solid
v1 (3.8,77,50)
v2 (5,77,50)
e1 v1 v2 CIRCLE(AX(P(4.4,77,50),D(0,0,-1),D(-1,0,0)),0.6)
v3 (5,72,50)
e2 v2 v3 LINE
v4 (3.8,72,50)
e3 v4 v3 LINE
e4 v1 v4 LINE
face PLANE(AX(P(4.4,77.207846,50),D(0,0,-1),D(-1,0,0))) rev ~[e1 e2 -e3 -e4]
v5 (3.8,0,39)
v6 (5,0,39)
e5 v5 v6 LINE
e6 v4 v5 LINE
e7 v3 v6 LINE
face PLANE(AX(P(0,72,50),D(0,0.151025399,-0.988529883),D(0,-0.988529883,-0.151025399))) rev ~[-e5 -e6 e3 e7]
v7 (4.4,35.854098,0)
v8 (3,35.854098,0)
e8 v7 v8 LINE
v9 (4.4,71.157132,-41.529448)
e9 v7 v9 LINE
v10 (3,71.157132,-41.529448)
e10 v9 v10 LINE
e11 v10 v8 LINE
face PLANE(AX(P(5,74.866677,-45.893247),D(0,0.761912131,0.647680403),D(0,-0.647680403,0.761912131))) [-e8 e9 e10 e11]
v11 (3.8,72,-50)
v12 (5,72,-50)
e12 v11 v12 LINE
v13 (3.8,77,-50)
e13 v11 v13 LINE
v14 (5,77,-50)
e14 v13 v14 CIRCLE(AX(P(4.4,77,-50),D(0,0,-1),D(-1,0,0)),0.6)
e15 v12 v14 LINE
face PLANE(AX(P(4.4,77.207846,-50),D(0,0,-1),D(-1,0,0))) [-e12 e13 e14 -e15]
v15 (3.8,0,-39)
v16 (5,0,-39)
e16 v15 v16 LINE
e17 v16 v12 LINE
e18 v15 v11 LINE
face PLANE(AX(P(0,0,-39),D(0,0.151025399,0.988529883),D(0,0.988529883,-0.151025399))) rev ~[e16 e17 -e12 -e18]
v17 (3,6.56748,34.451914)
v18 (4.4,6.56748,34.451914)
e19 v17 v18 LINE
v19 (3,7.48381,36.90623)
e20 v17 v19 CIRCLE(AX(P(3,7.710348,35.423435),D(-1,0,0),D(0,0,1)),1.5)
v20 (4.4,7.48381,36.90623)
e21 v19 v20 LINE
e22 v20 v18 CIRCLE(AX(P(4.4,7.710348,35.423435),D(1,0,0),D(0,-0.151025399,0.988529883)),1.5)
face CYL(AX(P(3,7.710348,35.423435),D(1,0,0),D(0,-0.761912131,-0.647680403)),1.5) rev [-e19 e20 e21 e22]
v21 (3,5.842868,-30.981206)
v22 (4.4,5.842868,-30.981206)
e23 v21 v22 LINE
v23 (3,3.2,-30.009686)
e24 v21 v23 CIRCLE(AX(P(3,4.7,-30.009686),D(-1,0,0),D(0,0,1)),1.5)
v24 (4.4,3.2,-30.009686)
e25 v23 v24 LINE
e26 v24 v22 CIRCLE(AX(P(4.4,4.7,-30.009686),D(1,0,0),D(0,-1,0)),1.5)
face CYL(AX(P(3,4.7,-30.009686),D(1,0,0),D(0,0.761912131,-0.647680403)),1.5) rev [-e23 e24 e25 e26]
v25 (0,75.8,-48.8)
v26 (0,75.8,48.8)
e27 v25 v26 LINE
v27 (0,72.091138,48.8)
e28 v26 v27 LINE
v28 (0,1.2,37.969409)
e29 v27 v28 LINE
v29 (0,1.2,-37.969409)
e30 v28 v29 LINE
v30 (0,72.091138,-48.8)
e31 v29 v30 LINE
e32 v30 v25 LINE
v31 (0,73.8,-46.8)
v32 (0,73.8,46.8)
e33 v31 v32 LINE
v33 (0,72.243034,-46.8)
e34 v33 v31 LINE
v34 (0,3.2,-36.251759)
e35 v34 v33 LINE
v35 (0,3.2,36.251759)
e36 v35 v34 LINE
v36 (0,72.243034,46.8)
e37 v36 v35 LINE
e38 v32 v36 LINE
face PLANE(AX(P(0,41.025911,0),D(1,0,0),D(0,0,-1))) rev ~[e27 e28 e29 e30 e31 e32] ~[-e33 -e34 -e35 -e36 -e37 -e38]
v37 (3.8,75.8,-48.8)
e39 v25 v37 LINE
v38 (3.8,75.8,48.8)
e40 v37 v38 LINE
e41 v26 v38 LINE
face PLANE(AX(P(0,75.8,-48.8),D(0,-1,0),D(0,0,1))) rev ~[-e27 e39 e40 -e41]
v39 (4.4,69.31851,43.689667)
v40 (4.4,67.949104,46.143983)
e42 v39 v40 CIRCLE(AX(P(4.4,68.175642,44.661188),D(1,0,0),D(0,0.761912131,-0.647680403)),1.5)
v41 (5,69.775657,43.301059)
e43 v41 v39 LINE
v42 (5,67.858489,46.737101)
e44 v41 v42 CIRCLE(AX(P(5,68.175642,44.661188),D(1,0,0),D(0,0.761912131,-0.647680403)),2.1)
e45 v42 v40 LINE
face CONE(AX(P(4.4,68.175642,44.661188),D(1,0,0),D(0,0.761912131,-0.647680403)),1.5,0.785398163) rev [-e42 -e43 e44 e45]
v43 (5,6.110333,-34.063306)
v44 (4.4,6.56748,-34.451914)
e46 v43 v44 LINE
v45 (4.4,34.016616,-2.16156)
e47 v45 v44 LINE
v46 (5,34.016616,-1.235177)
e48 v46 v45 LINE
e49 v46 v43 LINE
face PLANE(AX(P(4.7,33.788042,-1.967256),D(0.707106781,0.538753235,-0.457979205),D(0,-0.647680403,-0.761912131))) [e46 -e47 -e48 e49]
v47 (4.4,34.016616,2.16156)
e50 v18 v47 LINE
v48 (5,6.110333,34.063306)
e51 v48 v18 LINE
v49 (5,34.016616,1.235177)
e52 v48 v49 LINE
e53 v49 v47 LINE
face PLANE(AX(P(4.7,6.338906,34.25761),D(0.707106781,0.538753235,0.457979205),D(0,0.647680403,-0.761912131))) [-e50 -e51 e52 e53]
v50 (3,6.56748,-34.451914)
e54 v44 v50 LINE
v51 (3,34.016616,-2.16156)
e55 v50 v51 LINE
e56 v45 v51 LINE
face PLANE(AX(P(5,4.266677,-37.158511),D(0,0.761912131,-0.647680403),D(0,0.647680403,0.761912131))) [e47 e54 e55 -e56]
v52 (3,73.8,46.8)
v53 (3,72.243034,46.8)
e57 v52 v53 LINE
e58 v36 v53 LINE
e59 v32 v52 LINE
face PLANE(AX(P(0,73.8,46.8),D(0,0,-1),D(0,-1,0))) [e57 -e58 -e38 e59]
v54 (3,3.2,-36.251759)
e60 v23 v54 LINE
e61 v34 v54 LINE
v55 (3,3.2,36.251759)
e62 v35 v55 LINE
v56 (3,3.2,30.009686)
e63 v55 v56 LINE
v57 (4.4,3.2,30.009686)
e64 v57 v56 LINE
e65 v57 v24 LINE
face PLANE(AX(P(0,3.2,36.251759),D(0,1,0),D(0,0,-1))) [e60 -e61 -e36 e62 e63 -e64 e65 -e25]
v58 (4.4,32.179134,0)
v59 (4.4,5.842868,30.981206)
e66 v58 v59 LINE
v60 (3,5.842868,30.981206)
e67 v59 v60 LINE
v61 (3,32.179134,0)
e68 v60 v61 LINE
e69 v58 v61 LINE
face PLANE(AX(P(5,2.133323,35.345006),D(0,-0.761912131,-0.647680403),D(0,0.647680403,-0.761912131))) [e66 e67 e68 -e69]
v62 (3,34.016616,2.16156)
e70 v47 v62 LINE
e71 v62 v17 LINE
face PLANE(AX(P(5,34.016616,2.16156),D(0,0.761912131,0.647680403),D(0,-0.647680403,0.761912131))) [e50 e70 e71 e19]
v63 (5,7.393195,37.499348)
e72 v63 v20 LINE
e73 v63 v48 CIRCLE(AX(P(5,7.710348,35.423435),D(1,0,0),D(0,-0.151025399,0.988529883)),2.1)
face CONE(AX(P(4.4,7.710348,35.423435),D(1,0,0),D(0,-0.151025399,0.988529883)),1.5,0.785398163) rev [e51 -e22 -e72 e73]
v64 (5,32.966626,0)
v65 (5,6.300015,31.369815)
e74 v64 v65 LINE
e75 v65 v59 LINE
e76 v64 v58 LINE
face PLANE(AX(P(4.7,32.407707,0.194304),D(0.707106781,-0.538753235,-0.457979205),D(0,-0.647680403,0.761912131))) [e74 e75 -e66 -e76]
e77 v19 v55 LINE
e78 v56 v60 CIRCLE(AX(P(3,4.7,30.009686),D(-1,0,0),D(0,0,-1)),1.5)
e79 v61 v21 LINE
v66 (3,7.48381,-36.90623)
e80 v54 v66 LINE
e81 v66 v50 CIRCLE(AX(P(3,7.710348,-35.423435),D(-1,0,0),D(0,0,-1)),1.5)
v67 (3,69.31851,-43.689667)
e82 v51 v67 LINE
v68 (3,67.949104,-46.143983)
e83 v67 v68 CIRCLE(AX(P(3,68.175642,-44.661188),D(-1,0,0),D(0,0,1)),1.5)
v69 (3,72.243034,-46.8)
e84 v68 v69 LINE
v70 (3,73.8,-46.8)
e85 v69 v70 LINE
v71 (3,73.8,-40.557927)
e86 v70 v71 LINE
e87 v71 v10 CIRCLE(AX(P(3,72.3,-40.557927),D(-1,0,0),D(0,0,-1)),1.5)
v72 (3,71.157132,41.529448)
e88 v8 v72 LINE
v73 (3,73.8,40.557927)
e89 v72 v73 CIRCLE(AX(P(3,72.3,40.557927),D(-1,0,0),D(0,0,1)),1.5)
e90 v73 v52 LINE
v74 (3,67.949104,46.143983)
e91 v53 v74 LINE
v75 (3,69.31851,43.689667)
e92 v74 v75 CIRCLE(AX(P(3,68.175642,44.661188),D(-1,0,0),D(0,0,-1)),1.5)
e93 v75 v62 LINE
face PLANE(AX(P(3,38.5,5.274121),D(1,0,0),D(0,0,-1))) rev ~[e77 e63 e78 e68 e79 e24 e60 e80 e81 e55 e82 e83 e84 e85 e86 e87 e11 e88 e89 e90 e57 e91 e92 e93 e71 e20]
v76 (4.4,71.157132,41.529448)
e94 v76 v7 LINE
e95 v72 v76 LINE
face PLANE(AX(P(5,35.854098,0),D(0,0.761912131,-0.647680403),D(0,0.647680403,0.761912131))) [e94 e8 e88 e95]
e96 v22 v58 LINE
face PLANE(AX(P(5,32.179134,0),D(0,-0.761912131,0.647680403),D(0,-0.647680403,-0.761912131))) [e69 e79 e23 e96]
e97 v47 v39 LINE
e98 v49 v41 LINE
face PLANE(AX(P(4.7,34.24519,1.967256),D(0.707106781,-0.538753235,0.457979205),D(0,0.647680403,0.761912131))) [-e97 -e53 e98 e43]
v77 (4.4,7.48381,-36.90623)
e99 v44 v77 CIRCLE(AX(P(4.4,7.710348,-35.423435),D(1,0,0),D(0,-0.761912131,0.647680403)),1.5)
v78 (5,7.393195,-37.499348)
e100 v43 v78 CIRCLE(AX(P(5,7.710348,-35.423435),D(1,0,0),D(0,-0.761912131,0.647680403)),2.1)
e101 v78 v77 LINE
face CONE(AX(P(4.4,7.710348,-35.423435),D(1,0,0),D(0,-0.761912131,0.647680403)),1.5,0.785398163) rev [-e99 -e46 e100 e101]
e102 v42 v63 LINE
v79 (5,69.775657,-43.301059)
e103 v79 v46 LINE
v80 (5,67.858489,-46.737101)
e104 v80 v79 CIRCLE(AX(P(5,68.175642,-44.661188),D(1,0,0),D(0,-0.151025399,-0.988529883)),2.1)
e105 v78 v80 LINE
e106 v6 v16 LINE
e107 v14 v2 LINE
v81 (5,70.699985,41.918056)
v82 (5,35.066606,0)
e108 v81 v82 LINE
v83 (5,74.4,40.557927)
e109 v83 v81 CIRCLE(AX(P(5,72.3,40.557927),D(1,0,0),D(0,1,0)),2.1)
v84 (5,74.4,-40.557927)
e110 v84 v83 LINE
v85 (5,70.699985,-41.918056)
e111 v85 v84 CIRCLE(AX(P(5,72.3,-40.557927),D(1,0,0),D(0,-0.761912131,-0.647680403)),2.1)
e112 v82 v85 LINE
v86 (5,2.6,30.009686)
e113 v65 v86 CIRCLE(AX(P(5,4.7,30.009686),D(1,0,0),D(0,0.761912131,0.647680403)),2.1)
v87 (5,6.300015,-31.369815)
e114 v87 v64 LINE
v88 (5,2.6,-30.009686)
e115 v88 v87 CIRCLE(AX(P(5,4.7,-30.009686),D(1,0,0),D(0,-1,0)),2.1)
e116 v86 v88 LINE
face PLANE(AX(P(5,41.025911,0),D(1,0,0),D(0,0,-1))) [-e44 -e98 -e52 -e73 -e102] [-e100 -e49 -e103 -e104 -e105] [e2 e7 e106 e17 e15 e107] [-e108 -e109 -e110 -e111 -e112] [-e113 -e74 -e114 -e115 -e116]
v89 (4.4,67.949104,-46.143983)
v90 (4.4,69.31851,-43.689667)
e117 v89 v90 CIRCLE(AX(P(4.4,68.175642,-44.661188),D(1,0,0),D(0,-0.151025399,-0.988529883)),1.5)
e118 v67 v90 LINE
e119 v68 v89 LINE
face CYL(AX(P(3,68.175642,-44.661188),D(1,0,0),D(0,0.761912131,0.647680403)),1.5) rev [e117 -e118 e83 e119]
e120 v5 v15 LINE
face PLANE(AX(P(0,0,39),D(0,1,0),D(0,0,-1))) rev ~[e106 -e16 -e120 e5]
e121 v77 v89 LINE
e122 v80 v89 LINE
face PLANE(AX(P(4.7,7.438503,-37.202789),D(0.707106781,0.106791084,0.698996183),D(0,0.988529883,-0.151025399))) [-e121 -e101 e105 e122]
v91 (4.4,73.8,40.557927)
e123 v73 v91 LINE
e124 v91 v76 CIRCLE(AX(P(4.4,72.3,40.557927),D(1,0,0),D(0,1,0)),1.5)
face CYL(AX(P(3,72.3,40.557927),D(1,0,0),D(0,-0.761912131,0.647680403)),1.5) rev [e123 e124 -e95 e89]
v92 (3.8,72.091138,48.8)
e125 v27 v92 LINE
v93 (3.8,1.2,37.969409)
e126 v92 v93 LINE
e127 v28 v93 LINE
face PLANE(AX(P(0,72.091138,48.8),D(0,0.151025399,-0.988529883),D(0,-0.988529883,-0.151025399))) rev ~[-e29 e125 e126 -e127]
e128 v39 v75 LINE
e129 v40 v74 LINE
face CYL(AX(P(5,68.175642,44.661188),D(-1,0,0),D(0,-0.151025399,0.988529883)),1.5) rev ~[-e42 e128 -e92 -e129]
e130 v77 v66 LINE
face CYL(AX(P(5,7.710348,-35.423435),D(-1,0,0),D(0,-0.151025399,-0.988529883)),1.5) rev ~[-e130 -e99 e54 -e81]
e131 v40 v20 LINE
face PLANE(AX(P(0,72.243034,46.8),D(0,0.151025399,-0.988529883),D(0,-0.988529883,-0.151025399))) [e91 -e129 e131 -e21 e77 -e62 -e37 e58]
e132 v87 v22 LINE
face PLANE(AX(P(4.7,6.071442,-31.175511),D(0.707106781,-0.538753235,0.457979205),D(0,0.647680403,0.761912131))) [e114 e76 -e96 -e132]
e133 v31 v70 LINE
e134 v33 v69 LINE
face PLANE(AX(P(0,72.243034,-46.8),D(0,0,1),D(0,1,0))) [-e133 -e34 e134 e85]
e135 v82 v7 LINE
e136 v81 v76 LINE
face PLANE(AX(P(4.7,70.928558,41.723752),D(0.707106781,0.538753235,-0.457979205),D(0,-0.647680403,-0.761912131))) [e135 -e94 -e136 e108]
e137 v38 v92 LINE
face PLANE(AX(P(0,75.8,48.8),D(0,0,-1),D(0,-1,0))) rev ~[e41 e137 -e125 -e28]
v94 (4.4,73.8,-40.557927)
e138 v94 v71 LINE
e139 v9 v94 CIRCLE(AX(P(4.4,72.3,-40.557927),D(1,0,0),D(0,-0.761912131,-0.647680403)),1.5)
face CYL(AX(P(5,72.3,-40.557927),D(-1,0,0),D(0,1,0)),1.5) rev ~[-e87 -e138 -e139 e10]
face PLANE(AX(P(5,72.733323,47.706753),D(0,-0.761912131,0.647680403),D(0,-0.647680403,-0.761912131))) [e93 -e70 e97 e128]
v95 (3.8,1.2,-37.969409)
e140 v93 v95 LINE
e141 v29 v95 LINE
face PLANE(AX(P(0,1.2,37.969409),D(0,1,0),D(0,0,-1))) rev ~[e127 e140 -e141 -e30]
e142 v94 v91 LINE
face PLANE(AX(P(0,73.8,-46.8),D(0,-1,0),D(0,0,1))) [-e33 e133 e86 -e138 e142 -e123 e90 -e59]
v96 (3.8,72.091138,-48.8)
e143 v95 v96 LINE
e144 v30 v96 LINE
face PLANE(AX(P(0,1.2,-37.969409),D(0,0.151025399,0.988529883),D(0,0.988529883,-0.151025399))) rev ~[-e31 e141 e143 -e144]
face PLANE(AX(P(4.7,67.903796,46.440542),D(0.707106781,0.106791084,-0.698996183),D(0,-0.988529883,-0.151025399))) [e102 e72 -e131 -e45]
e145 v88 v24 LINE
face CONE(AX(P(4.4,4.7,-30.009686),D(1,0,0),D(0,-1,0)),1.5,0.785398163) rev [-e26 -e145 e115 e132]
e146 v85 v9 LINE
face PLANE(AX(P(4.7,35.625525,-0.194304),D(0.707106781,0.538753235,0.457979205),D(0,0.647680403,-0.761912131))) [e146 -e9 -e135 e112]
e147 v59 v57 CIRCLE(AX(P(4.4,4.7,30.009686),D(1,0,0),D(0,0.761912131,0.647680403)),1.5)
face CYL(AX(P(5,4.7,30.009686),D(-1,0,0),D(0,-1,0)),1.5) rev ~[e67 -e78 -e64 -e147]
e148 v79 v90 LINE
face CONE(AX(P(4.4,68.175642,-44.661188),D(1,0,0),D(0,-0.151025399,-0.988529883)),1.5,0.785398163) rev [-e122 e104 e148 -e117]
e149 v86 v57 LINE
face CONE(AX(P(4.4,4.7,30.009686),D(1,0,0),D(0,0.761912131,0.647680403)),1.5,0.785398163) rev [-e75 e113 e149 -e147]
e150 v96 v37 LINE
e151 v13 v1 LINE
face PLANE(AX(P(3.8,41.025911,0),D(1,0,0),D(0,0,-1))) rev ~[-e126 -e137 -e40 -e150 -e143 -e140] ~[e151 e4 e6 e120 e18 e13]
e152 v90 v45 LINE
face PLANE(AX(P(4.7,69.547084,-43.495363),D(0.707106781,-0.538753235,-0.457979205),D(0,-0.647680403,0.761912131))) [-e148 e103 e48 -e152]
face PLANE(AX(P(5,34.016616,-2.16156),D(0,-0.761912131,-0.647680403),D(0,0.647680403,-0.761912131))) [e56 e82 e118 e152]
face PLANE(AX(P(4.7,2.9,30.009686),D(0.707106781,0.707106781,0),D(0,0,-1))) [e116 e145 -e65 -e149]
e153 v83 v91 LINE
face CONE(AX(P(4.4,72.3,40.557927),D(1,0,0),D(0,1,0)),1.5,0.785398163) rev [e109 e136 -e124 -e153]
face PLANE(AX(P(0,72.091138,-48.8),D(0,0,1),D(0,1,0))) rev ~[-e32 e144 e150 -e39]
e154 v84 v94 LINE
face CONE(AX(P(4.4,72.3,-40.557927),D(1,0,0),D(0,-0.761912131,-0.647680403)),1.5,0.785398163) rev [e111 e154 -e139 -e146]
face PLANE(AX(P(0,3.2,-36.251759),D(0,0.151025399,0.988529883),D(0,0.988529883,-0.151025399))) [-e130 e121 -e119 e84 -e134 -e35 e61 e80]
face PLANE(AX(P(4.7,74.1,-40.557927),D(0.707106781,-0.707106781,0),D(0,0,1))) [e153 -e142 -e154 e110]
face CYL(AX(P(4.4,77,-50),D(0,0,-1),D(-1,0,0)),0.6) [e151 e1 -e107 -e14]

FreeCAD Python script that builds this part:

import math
import FreeCAD as App
import Part
import Sketcher


def edges_at(feature, points):
    """Names of the edges that pass closest to the given points."""
    edges = feature.Shape.Edges
    near = lambda p: min(range(len(edges)), key=lambda i: edges[i].distToShape(Part.Vertex(*p))[0])
    return sorted({f"Edge{near(p) + 1}" for p in points})


def add_polygon(sketch, points):
    """Adds a closed chain of lines whose ends are joined by coincident constraints."""
    first, n = sketch.GeometryCount, len(points)
    for a, b in zip(points, points[1:] + points[:1]):
        sketch.addGeometry(Part.LineSegment(App.Vector(*a, 0), App.Vector(*b, 0)), False)
    for i in range(n):
        sketch.addConstraint(Sketcher.Constraint("Coincident", first + i, 2, first + (i + 1) % n, 1))

doc = App.newDocument("Part")
body = doc.addObject("PartDesign::Body", "Body")

sketch1 = body.newObject("Sketcher::SketchObject", "Sketch")
sketch1.AttachmentSupport = (doc.getObject("YZ_Plane"), [""])
sketch1.MapMode = "FlatFace"
add_polygon(sketch1, [(77, -50), (77, 50), (72, 50), (0, 39), (0, -39), (72, -50)])
add_polygon(sketch1, [(73.8, 46.8), (73.8, -46.8), (72.2, -46.8), (3.2, -36.3), (3.2, 36.3), (72.2, 46.8)])
sketch1.addConstraint([
    Sketcher.Constraint("Vertical", 0),
    Sketcher.Constraint("Horizontal", 1),
    Sketcher.Constraint("Vertical", 3),
    Sketcher.Constraint("Horizontal", 5),
    Sketcher.Constraint("Vertical", 6),
    Sketcher.Constraint("Horizontal", 7),
    Sketcher.Constraint("Vertical", 9),
    Sketcher.Constraint("Horizontal", 11),
    Sketcher.Constraint("Symmetric", 2, 2, 3, 2, -1, 1),
    Sketcher.Constraint("Symmetric", 1, 2, 4, 2, -1),
    Sketcher.Constraint("Symmetric", 7, 2, 10, 2, -1),
    Sketcher.Constraint("Parallel", 4, 8),
    Sketcher.Constraint("Parallel", 2, 10),
    Sketcher.Constraint("DistanceX", 1, 2, 1, 1, 5.0),
    Sketcher.Constraint("DistanceY", 0, 1, 0, 2, 100.0),
    Sketcher.Constraint("DistanceY", 3, 2, 3, 1, 78.0),
    Sketcher.Constraint("DistanceY", 6, 2, 6, 1, 93.6),
    Sketcher.Constraint("DistanceX", -1, 1, 0, 2, 77.0),
    Sketcher.Constraint("DistanceX", -1, 1, 6, 2, 73.8),
    Sketcher.Constraint("DistanceX", -1, 1, 8, 2, 3.2),
    Sketcher.Constraint("DistanceX", 7, 2, 7, 1, 1.556966),
])
pad1 = body.newObject("PartDesign::Pad", "Pad")
pad1.Profile = sketch1
pad1.Length = 5

sketch2 = body.newObject("Sketcher::SketchObject", "Sketch001")
sketch2.AttachmentSupport = (doc.getObject("YZ_Plane"), [""])
sketch2.MapMode = "FlatFace"
sketch2.AttachmentOffset = App.Placement(App.Vector(0, 0, 5), App.Rotation())
add_polygon(sketch2, [(74.9, 45.9), (72.7, 47.7), (34, 2.2), (4.3, 37.2), (2.1, 35.3), (32.2, 0), (2.1, -35.3), (4.3, -37.2), (34, -2.2), (72.7, -47.7), (74.9, -45.9), (35.9, 0)])
sketch2.addConstraint([
    Sketcher.Constraint("Symmetric", 3, 2, 5, 2, -1),
    Sketcher.Constraint("Symmetric", 2, 2, 6, 2, -1),
    Sketcher.Constraint("Symmetric", 1, 2, 7, 2, -1),
    Sketcher.Constraint("Symmetric", 0, 2, 8, 2, -1),
    Sketcher.Constraint("Symmetric", 9, 2, 11, 2, -1),
    Sketcher.Constraint("PointOnObject", 4, 2, -1),
    Sketcher.Constraint("PointOnObject", 10, 2, -1),
    Sketcher.Constraint("Perpendicular", 0, 1),
    Sketcher.Constraint("Perpendicular", 2, 3),
    Sketcher.Constraint("Perpendicular", 3, 4),
    Sketcher.Constraint("Parallel", 1, 5),
    Sketcher.Constraint("Perpendicular", 9, 10),
    Sketcher.Constraint("Equal", 0, 3),
    Sketcher.Constraint("Distance", 0, 2.8),
    Sketcher.Constraint("DistanceX", 3, 2, 0, 2, 70.6),
    Sketcher.Constraint("DistanceX", -1, 1, 10, 2, 35.854098),
    Sketcher.Constraint("Distance", 4, 46.389872),
    Sketcher.Constraint("DistanceY", -1, 1, 1, 2, 2.16156),
    Sketcher.Constraint("DistanceY", -1, 1, 2, 2, 37.158511),
])
pad2 = body.newObject("PartDesign::Pad", "Pad001")
pad2.Profile = sketch2
pad2.Length = 2
pad2.Reversed = True

sketch3 = body.newObject("Sketcher::SketchObject", "Sketch002")
sketch3.AttachmentSupport = (doc.getObject("YZ_Plane"), [""])
sketch3.MapMode = "FlatFace"
add_polygon(sketch3, [(72, 50), (77, 50), (77, -50), (72, -50), (0, -39), (0, 39)])
add_polygon(sketch3, [(75.8, 48.8), (72.1, 48.8), (1.2, 38), (1.2, -38), (72.1, -48.8), (75.8, -48.8)])
sketch3.addConstraint([
    Sketcher.Constraint("Horizontal", 0),
    Sketcher.Constraint("Vertical", 1),
    Sketcher.Constraint("Horizontal", 2),
    Sketcher.Constraint("Vertical", 4),
    Sketcher.Constraint("Horizontal", 6),
    Sketcher.Constraint("Vertical", 8),
    Sketcher.Constraint("Horizontal", 10),
    Sketcher.Constraint("Vertical", 11),
    Sketcher.Constraint("Symmetric", 3, 2, 4, 2, -1, 1),
    Sketcher.Constraint("Symmetric", 2, 2, 5, 2, -1),
    Sketcher.Constraint("Symmetric", 6, 2, 9, 2, -1),
    Sketcher.Constraint("Parallel", 5, 7),
    Sketcher.Constraint("Parallel", 3, 9),
    Sketcher.Constraint("DistanceX", 0, 1, 0, 2, 5.0),
    Sketcher.Constraint("DistanceY", 1, 2, 1, 1, 100.0),
    Sketcher.Constraint("DistanceY", 4, 1, 4, 2, 78.0),
    Sketcher.Constraint("DistanceY", 11, 1, 11, 2, 97.6),
    Sketcher.Constraint("DistanceX", -1, 1, 0, 2, 77.0),
    Sketcher.Constraint("DistanceX", -1, 1, 7, 2, 1.2),
    Sketcher.Constraint("DistanceX", -1, 1, 10, 2, 75.8),
    Sketcher.Constraint("DistanceY", 8, 2, 8, 1, 75.938819),
])
pocket1 = body.newObject("PartDesign::Pocket", "Pocket")
pocket1.Profile = sketch3
pocket1.Type = "TwoLengths"
pocket1.Length = 1
pocket1.Length2 = 3.8

sketch4 = body.newObject("Sketcher::SketchObject", "Sketch003")
sketch4.AttachmentSupport = (doc.getObject("XY_Plane"), [""])
sketch4.MapMode = "FlatFace"
sketch4.AttachmentOffset = App.Placement(App.Vector(0, 0, -50), App.Rotation())
sketch4.addGeometry([
    Part.LineSegment(App.Vector(5, 77, 0), App.Vector(3.8, 77, 0)),
    Part.ArcOfCircle(Part.Circle(App.Vector(4.4, 77, 0), App.Vector(0, 0, 1), 0.6), math.radians(0), math.radians(180)),
], False)
sketch4.addConstraint([
    Sketcher.Constraint("Coincident", 0, 1, 1, 1),
    Sketcher.Constraint("Coincident", 1, 2, 0, 2),
    Sketcher.Constraint("Horizontal", 0),
    Sketcher.Constraint("Horizontal", 1, 3, 0, 1),
    Sketcher.Constraint("Radius", 1, 0.6),
    Sketcher.Constraint("DistanceY", -1, 1, 1, 3, 77.0),
    Sketcher.Constraint("DistanceX", -1, 1, 0, 1, 5.0),
])
pad3 = body.newObject("PartDesign::Pad", "Pad002")
pad3.Profile = sketch4
pad3.Length = 100
doc.recompute()

fillet = body.newObject("PartDesign::Fillet", "Fillet")
fillet.Base = (pad3, edges_at(pad3, [
    (4, 73.8, -44.638),
    (4, 73.8, 44.638),
    (4, 71.921, -46.751),
    (4, 4.826, -36.5),
    (4, 3.2, 34.09),
    (4, 3.2, -34.09),
    (4, 4.826, 36.5),
    (4, 71.921, 46.751),
]))
fillet.Radius = 1.5
doc.recompute()

chamfer = body.newObject("PartDesign::Chamfer", "Chamfer")
chamfer.Base = (fillet, edges_at(fillet, [
    (5, 37.716, 41.525),
    (5, 3.2, 0),
    (5, 51.668, 22.926),
    (5, 73.8, 0),
    (5, 53.506, 20.765),
    (5, 37.716, -41.525),
    (5, 51.668, -22.926),
    (5, 53.506, -20.765),
    (5, 6.305, 35.948),
    (5, 4.182, 31.418),
    (5, 69.486, 45.392),
    (5, 72.818, 41.966),
    (5, 69.486, -45.392),
    (5, 72.818, -41.966),
    (5, 4.182, -31.418),
    (5, 6.305, -35.948),
    (5, 20.292, -18.307),
    (5, 19.011, -15.491),
    (5, 20.292, 18.307),
    (5, 19.011, 15.491),
]))
chamfer.Size = 0.6

doc.recompute()
